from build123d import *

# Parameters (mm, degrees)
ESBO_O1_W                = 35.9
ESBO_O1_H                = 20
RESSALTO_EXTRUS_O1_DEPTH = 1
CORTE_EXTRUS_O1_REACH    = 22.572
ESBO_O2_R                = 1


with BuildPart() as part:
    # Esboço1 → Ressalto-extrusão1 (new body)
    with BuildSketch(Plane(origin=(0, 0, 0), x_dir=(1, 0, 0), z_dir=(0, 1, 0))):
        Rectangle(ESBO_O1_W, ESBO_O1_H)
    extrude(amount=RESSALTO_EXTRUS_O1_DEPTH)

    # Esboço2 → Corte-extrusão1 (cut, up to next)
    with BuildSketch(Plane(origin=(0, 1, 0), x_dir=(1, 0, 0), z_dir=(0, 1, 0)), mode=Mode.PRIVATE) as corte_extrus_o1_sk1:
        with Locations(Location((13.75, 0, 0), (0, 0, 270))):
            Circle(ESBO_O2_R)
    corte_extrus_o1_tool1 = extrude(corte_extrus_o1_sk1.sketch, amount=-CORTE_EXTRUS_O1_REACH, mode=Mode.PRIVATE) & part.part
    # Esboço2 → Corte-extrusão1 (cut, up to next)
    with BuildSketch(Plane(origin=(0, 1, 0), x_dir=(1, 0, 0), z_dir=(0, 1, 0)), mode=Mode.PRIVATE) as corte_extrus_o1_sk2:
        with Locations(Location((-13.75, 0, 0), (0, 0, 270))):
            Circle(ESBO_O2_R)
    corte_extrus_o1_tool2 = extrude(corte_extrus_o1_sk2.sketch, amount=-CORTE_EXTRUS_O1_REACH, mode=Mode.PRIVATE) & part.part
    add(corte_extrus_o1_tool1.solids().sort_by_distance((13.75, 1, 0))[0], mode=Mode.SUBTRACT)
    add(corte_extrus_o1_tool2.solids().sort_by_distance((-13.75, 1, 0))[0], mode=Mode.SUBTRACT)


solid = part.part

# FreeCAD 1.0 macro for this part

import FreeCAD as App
import Part
import Sketcher

V = App.Vector
Q = App.Units.Quantity


def add_polygon(sketch, points):
    """Adds a closed chain of lines whose ends are joined by coincident constraints."""
    first, n = sketch.GeometryCount, len(points)
    for a, b in zip(points, points[1:] + points[:1]):
        sketch.addGeometry(Part.LineSegment(App.Vector(*a, 0), App.Vector(*b, 0)), False)
    for i in range(n):
        sketch.addConstraint(Sketcher.Constraint("Coincident", first + i, 2, first + (i + 1) % n, 1))

doc = App.newDocument("Part")
body = doc.addObject("PartDesign::Body", "Body")

# Sketch on XZ plane
sketch1 = body.newObject("Sketcher::SketchObject", "Sketch")
sketch1.AttachmentSupport = (doc.getObject("XZ_Plane"), [""])
sketch1.MapMode = "FlatFace"
add_polygon(sketch1, [(-18, -10), (-18, 10), (18, 10), (18, -10)])  # lines 0-3
sketch1.addConstraint(Sketcher.Constraint("Vertical", 0))
sketch1.addConstraint(Sketcher.Constraint("Horizontal", 1))
sketch1.addConstraint(Sketcher.Constraint("Vertical", 2))
sketch1.addConstraint(Sketcher.Constraint("Horizontal", 3))
sketch1.addConstraint(Sketcher.Constraint("Symmetric", 0, 2, 2, 2, -1, 1))
sketch1.addConstraint(Sketcher.Constraint("DistanceY", 0, 1, 0, 2, Q("20 mm")))
sketch1.addConstraint(Sketcher.Constraint("DistanceX", 1, 1, 1, 2, Q("35.9 mm")))
pad1 = body.newObject("PartDesign::Pad", "Pad")
pad1.Profile = sketch1
pad1.Length = 1
pad1.Reversed = True

# Sketch on XZ plane
sketch2 = body.newObject("Sketcher::SketchObject", "Sketch001")
sketch2.AttachmentSupport = (doc.getObject("XZ_Plane"), [""])
sketch2.MapMode = "FlatFace"
sketch2.AttachmentOffset = App.Placement(V(0, 0, -1), App.Rotation())
sketch2.addGeometry(Part.Circle(V(13.8, 0, 0), V(0, 0, 1), 1), False)
sketch2.addConstraint(Sketcher.Constraint("PointOnObject", 0, 3, -1))
sketch2.addConstraint(Sketcher.Constraint("Diameter", 0, Q("2 mm")))
sketch2.addConstraint(Sketcher.Constraint("DistanceX", -1, 1, 0, 3, Q("13.75 mm")))
pocket1 = body.newObject("PartDesign::Pocket", "Pocket")
pocket1.Profile = sketch2
pocket1.Type = "UpToFirst"
pocket1.Reversed = True

# Sketch on XZ plane
sketch3 = body.newObject("Sketcher::SketchObject", "Sketch002")
sketch3.AttachmentSupport = (doc.getObject("XZ_Plane"), [""])
sketch3.MapMode = "FlatFace"
sketch3.AttachmentOffset = App.Placement(V(0, 0, -1), App.Rotation())
sketch3.addGeometry(Part.Circle(V(-13.8, 0, 0), V(0, 0, 1), 1), False)
sketch3.addConstraint(Sketcher.Constraint("PointOnObject", 0, 3, -1))
sketch3.addConstraint(Sketcher.Constraint("Diameter", 0, Q("2 mm")))
sketch3.addConstraint(Sketcher.Constraint("DistanceX", 0, 3, -1, 1, Q("13.75 mm")))
pocket2 = body.newObject("PartDesign::Pocket", "Pocket001")
pocket2.Profile = sketch3
pocket2.Type = "UpToFirst"
pocket2.Reversed = True

doc.recompute()
